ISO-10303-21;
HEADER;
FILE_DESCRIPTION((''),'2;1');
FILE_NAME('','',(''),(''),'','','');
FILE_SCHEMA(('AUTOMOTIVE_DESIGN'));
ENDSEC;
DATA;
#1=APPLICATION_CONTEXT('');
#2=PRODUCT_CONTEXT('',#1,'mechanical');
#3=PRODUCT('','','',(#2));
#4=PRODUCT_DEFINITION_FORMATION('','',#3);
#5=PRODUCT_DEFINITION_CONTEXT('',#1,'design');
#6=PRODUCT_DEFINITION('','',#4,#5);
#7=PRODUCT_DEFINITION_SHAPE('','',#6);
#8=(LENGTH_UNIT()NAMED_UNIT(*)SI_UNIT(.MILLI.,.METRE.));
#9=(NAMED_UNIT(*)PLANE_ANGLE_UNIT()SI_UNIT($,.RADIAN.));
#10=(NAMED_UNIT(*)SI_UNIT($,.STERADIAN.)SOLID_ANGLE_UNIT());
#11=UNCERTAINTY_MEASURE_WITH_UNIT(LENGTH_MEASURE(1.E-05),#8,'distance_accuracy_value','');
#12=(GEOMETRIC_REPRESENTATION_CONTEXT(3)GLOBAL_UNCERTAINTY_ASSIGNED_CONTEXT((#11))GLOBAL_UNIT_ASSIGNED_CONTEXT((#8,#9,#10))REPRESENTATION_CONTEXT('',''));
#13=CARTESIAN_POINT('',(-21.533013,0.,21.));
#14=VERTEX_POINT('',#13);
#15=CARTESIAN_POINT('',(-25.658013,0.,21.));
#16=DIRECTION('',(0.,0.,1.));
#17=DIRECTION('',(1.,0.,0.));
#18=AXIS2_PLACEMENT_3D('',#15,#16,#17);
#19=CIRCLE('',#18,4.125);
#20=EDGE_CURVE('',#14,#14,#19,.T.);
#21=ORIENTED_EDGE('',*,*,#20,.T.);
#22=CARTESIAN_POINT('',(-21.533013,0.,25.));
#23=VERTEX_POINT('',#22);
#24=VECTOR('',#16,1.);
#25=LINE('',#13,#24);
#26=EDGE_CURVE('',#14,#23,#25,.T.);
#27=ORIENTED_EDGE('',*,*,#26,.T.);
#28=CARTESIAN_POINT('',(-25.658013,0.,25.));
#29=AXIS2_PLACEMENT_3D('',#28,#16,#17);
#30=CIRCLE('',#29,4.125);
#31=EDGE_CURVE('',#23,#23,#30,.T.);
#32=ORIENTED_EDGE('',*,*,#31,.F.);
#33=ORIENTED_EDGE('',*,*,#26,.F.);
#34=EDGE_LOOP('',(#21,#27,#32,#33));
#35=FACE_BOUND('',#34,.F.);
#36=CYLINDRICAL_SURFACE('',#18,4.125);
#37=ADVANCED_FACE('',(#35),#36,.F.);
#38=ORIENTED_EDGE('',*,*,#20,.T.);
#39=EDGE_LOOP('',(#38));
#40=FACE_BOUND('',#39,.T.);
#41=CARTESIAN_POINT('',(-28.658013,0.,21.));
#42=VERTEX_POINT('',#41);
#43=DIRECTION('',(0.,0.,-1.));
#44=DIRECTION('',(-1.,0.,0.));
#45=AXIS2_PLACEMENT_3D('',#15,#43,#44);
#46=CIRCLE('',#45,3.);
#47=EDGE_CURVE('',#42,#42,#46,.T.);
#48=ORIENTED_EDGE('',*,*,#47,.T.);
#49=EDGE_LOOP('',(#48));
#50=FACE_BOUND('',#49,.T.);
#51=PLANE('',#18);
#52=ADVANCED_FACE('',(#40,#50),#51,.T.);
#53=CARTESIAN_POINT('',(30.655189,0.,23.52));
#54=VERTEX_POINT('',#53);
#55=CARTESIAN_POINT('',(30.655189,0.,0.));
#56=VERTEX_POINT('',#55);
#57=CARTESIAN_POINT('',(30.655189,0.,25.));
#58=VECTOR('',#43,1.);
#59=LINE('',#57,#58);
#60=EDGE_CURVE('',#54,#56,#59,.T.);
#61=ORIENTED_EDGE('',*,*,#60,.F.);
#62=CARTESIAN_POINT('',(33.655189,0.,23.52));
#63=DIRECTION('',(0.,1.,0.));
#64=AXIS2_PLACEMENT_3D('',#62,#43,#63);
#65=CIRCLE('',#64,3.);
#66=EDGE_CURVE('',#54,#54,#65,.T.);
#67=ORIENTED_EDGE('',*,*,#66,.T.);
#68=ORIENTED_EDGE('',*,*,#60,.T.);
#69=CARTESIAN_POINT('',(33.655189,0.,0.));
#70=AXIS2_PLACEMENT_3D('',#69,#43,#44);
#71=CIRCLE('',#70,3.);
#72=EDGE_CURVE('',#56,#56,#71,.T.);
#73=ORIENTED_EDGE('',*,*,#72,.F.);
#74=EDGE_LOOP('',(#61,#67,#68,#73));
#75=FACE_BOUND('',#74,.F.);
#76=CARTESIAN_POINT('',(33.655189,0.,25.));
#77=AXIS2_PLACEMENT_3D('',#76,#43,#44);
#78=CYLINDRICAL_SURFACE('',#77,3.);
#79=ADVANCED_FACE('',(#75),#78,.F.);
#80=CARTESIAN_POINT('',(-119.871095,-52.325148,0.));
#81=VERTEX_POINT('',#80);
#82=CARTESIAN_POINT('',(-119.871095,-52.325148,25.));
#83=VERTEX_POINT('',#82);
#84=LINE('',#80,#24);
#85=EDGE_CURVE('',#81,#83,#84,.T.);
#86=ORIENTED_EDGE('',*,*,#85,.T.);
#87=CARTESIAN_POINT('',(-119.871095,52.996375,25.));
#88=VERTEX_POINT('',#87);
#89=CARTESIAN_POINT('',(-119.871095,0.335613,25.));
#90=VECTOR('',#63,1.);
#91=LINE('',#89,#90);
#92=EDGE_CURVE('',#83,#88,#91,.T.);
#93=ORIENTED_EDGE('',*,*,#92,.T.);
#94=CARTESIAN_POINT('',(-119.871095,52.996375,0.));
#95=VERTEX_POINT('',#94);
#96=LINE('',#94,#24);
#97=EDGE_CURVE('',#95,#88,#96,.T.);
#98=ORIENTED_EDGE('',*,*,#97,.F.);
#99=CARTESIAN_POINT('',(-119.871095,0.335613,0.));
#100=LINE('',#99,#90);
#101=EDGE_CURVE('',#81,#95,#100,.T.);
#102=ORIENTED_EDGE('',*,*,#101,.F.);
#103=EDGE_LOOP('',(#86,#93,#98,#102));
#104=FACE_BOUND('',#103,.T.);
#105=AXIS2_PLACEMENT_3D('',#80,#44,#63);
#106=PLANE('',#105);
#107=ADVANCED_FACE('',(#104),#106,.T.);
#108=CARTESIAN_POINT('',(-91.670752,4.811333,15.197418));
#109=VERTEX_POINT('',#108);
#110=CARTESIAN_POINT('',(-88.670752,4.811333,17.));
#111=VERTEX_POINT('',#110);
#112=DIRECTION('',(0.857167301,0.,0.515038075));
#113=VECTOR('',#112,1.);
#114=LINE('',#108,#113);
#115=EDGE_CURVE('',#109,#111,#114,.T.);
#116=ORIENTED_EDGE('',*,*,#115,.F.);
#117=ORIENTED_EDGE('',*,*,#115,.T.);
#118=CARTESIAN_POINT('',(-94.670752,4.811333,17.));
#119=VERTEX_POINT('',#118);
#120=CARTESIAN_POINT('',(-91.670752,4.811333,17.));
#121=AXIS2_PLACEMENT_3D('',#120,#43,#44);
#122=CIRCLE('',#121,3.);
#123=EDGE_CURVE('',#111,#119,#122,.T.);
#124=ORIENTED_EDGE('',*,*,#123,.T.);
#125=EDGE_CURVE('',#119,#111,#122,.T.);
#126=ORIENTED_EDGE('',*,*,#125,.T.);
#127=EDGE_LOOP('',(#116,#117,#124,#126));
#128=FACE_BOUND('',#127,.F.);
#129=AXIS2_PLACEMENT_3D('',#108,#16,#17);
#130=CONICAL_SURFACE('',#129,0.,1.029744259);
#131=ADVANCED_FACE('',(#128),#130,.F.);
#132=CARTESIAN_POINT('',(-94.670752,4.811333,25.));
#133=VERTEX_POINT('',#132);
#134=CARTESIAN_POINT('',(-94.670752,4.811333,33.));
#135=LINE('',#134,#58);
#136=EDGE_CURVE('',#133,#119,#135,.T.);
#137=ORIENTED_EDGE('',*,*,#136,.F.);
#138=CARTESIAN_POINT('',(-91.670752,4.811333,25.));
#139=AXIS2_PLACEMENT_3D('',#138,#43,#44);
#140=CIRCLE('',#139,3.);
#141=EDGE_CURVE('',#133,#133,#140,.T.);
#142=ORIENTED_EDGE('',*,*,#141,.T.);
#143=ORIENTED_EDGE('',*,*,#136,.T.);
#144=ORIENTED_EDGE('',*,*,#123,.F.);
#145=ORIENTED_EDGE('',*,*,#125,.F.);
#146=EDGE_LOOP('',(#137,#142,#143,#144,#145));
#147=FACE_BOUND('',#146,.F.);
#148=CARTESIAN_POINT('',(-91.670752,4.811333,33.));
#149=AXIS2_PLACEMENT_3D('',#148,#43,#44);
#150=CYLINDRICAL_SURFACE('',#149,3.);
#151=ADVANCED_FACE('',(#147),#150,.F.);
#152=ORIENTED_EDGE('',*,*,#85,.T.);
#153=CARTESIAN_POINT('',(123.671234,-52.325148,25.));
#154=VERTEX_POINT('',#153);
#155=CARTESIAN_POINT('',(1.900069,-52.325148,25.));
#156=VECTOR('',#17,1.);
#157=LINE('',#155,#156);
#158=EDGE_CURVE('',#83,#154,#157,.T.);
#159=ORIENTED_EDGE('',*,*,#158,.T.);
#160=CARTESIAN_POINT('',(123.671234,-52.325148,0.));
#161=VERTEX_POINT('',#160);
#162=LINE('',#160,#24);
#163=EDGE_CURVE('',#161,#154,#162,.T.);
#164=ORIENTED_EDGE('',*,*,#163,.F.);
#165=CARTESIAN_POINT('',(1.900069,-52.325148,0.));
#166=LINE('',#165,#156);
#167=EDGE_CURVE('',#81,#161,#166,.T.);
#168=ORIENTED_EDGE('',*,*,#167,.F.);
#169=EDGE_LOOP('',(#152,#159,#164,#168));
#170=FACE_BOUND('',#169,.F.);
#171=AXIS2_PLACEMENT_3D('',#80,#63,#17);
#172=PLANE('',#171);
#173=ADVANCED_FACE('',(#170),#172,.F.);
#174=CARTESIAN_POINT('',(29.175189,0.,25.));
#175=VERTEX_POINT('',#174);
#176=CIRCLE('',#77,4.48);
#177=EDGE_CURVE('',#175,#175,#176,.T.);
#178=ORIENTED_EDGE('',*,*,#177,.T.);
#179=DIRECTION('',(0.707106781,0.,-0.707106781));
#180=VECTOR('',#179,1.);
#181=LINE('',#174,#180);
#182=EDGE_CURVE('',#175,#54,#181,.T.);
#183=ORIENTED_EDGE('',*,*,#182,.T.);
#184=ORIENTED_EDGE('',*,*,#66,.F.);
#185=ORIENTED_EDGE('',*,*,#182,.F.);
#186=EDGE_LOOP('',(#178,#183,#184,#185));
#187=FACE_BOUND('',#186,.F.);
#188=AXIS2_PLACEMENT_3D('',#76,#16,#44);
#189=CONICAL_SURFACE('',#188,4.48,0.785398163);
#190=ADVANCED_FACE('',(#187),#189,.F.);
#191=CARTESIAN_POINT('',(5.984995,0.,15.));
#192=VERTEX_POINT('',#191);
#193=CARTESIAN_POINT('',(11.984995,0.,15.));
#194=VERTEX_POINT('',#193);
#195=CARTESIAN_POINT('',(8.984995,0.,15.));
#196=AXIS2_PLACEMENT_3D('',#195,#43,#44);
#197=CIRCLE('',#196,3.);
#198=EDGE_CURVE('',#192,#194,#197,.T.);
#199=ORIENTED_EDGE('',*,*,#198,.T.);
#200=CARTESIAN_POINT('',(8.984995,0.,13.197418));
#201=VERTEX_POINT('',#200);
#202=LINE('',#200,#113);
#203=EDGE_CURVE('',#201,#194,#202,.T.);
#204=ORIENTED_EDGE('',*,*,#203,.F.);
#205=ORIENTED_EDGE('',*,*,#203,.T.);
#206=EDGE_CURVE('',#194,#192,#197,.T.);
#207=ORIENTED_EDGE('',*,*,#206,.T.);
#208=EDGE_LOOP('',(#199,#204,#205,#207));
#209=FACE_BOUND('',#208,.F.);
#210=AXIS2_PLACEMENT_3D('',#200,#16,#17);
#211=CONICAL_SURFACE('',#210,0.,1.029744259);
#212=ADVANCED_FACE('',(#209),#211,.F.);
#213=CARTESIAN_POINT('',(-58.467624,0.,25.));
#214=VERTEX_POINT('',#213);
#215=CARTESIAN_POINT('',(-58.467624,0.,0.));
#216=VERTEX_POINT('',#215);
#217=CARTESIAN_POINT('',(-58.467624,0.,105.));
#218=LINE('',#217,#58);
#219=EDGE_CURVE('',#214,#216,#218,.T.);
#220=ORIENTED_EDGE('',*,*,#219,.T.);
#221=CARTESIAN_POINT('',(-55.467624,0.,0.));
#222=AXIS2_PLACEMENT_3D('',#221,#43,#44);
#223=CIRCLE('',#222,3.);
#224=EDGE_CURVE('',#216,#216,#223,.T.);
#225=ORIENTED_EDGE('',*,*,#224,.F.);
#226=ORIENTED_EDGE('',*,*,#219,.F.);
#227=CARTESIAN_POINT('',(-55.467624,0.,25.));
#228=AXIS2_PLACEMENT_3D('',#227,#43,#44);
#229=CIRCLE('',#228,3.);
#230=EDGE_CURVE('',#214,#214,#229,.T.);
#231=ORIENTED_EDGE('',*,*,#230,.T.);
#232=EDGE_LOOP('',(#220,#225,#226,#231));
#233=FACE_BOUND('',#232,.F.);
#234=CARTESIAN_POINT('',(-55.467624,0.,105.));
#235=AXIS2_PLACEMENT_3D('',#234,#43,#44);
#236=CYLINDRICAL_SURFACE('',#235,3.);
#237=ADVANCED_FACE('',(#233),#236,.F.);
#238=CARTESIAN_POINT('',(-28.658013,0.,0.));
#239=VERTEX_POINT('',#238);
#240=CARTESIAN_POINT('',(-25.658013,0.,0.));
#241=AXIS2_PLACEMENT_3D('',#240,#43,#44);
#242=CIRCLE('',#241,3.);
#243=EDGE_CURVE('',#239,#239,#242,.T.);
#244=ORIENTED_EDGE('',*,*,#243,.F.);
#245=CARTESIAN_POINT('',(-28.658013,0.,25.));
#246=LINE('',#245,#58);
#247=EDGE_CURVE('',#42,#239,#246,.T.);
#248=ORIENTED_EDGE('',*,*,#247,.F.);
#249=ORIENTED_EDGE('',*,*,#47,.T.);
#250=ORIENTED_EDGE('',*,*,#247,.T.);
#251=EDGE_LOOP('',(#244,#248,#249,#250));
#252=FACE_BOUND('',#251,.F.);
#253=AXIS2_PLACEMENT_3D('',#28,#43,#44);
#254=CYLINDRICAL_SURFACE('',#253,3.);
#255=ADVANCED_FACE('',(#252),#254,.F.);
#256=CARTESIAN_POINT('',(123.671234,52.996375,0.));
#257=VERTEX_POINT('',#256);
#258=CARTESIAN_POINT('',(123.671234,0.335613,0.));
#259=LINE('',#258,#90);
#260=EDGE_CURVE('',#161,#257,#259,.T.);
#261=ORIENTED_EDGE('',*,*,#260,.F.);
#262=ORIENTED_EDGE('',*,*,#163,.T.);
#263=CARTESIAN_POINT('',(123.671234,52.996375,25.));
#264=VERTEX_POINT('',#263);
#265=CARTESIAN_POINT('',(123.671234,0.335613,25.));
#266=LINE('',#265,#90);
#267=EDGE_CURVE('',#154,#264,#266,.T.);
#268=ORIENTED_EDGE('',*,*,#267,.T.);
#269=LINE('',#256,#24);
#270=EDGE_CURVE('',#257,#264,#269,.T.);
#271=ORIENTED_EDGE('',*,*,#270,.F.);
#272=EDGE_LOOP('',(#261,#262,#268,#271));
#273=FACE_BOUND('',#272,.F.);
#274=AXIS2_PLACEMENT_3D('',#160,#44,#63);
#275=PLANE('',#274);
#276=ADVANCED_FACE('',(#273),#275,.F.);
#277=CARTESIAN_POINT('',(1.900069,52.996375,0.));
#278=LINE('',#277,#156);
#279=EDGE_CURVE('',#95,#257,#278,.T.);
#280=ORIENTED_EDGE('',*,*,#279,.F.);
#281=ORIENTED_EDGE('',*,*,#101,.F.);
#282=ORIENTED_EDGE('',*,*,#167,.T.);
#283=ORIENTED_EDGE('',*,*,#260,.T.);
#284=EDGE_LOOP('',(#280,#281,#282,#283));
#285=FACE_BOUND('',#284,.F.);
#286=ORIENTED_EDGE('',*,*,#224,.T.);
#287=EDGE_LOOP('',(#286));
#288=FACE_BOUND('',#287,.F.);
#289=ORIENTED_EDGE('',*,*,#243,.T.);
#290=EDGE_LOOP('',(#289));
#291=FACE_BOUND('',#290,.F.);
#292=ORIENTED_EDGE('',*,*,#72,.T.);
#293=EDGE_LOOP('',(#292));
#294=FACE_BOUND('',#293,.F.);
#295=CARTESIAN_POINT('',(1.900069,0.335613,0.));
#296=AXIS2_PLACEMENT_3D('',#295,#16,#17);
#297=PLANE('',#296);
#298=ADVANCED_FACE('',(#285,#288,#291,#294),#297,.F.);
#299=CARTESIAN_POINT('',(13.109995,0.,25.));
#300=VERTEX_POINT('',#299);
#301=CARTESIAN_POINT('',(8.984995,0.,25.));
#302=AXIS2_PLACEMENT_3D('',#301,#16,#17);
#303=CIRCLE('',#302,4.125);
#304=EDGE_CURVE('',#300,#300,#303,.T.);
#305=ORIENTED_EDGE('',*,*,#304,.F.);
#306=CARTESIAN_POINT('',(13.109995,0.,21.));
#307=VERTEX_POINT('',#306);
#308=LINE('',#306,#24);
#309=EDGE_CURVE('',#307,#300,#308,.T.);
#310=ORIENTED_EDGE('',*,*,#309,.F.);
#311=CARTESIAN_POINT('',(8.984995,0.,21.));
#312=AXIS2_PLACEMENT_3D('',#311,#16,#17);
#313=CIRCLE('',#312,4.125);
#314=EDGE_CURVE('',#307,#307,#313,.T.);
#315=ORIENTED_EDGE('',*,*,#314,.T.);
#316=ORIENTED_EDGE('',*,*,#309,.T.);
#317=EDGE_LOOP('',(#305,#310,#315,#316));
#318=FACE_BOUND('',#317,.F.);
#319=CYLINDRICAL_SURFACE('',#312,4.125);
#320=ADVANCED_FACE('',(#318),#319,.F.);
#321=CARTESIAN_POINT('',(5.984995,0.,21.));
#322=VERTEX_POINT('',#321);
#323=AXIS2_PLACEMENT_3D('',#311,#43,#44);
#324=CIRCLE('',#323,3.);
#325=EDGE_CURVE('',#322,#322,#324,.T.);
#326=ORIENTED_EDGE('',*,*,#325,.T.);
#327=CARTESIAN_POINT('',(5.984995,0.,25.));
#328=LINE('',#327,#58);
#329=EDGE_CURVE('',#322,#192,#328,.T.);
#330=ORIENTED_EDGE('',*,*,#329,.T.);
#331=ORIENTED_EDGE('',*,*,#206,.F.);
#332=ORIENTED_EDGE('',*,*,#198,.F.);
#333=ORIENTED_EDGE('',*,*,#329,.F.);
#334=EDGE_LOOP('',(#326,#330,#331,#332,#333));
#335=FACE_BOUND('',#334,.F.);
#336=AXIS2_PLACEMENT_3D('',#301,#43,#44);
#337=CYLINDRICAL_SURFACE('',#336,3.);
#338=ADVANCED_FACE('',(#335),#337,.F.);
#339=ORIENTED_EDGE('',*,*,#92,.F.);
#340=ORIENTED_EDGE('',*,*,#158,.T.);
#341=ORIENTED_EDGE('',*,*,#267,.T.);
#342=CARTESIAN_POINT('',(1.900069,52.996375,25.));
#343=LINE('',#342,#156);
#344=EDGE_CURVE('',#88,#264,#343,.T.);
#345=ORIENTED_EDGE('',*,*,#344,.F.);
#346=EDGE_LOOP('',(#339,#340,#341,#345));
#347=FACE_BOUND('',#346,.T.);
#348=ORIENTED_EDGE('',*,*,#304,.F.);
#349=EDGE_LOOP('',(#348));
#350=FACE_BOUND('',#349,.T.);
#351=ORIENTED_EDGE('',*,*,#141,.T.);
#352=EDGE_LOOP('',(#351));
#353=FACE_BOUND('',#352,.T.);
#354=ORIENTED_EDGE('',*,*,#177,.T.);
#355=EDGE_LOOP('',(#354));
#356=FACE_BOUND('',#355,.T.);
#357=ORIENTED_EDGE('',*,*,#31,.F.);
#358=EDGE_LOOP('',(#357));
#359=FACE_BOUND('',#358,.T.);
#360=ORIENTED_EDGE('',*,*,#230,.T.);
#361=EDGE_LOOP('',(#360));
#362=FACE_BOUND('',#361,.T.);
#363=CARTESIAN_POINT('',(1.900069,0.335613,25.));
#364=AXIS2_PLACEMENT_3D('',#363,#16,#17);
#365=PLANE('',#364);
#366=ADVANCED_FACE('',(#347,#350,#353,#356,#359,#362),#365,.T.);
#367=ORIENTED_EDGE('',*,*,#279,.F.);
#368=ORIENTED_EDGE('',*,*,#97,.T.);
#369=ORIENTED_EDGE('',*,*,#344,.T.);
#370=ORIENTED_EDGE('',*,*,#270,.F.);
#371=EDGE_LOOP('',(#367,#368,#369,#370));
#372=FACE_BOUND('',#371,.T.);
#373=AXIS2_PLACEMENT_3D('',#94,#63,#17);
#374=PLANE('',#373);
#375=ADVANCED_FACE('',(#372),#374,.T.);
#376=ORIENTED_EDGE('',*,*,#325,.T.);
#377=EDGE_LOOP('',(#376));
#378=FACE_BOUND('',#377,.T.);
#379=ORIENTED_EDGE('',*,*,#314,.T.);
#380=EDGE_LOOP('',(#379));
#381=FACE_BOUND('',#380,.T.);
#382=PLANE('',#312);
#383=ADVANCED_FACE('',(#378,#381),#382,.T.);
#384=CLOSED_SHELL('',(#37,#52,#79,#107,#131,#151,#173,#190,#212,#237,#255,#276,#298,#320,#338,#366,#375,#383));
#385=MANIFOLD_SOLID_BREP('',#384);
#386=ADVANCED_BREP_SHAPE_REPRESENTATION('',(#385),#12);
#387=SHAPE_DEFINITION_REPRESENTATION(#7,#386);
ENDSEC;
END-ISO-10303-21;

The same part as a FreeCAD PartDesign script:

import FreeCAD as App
import Part
import Sketcher

V = App.Vector
Q = App.Units.Quantity


def add_polygon(sketch, points):
    """Adds a closed chain of lines whose ends are joined by coincident constraints."""
    first, n = sketch.GeometryCount, len(points)
    for a, b in zip(points, points[1:] + points[:1]):
        sketch.addGeometry(Part.LineSegment(App.Vector(*a, 0), App.Vector(*b, 0)), False)
    for i in range(n):
        sketch.addConstraint(Sketcher.Constraint("Coincident", first + i, 2, first + (i + 1) % n, 1))

doc = App.newDocument("Part")
body = doc.addObject("PartDesign::Body", "Body")

sketch1 = body.newObject("Sketcher::SketchObject", "Sketch")
sketch1.AttachmentSupport = (doc.getObject("XY_Plane"), [""])
sketch1.MapMode = "FlatFace"
add_polygon(sketch1, [(-119.871095, 52.996375), (-119.871095, -52.325148), (123.671234, -52.325148), (123.671234, 52.996375)])
sketch1.addConstraint([
    Sketcher.Constraint("Vertical", 0),
    Sketcher.Constraint("Horizontal", 1),
    Sketcher.Constraint("Vertical", 2),
    Sketcher.Constraint("Horizontal", 3),
    Sketcher.Constraint("DistanceX", 1, 1, 1, 2, Q("243.542328 mm")),
    Sketcher.Constraint("DistanceY", 0, 2, 0, 1, Q("105.321523 mm")),
    Sketcher.Constraint("DistanceY", 0, 2, -1, 1, Q("52.325148 mm")),
    Sketcher.Constraint("DistanceX", 0, 2, -1, 1, Q("119.871095 mm")),
])
pad1 = body.newObject("PartDesign::Pad", "Pad")
pad1.Profile = sketch1
pad1.Length = 25

sketch2 = body.newObject("Sketcher::SketchObject", "Sketch001")
sketch2.AttachmentSupport = (doc.getObject("XY_Plane"), [""])
sketch2.MapMode = "FlatFace"
sketch2.AttachmentOffset = App.Placement(V(0, 0, 25), App.Rotation())
sketch2.addGeometry(Part.Circle(V(-91.670752, 4.811333, 0), V(0, 0, 1), 3), False)
sketch2.addConstraint([
    Sketcher.Constraint("Diameter", 0, Q("6 mm")),
    Sketcher.Constraint("DistanceX", 0, 3, -1, 1, Q("91.670752 mm")),
    Sketcher.Constraint("DistanceY", -1, 1, 0, 3, Q("4.811333 mm")),
])
doc.recompute()
hole = body.newObject("PartDesign::Hole", "Hole")
hole.Profile = sketch2
hole.ThreadType = "None"
hole.Diameter = 6
hole.DepthType = "Dimension"
hole.Depth = 8
hole.DrillPoint = "Angled"
hole.DrillPointAngle = 118

sketch3 = body.newObject("Sketcher::SketchObject", "Sketch002")
sketch3.AttachmentSupport = (doc.getObject("XY_Plane"), [""])
sketch3.MapMode = "FlatFace"
sketch3.AttachmentOffset = App.Placement(V(0, 0, 25), App.Rotation())
sketch3.addGeometry(Part.Circle(V(-55.467624, 0, 0), V(0, 0, 1), 3), False)
sketch3.addConstraint([
    Sketcher.Constraint("PointOnObject", 0, 3, -1),
    Sketcher.Constraint("Diameter", 0, Q("6 mm")),
    Sketcher.Constraint("DistanceX", 0, 3, -1, 1, Q("55.467624 mm")),
])
doc.recompute()
hole2 = body.newObject("PartDesign::Hole", "Hole001")
hole2.Profile = sketch3
hole2.ThreadType = "None"
hole2.Diameter = 6
hole2.DepthType = "Dimension"
hole2.Depth = 80
hole2.DrillPoint = "Angled"
hole2.DrillPointAngle = 118

sketch4 = body.newObject("Sketcher::SketchObject", "Sketch003")
sketch4.AttachmentSupport = (doc.getObject("XY_Plane"), [""])
sketch4.MapMode = "FlatFace"
sketch4.AttachmentOffset = App.Placement(V(0, 0, 25), App.Rotation())
sketch4.addGeometry(Part.Circle(V(-25.658013, 0, 0), V(0, 0, 1), 3), False)
sketch4.addConstraint([
    Sketcher.Constraint("PointOnObject", 0, 3, -1),
    Sketcher.Constraint("Diameter", 0, Q("6 mm")),
    Sketcher.Constraint("DistanceX", 0, 3, -1, 1, Q("25.658013 mm")),
])
doc.recompute()
hole3 = body.newObject("PartDesign::Hole", "Hole002")
hole3.Profile = sketch4
hole3.ThreadType = "None"
hole3.Diameter = 6
hole3.DepthType = "Dimension"
hole3.Depth = 80
hole3.DrillPoint = "Angled"
hole3.DrillPointAngle = 118
hole3.HoleCutType = "Counterbore"
hole3.HoleCutDiameter = 8.25
hole3.HoleCutDepth = 4

sketch5 = body.newObject("Sketcher::SketchObject", "Sketch004")
sketch5.AttachmentSupport = (doc.getObject("XY_Plane"), [""])
sketch5.MapMode = "FlatFace"
sketch5.AttachmentOffset = App.Placement(V(0, 0, 25), App.Rotation())
sketch5.addGeometry(Part.Circle(V(8.984995, 0, 0), V(0, 0, 1), 3), False)
sketch5.addConstraint([
    Sketcher.Constraint("PointOnObject", 0, 3, -1),
    Sketcher.Constraint("Diameter", 0, Q("6 mm")),
    Sketcher.Constraint("DistanceX", -1, 1, 0, 3, Q("8.984995 mm")),
])
doc.recompute()
hole4 = body.newObject("PartDesign::Hole", "Hole003")
hole4.Profile = sketch5
hole4.ThreadType = "None"
hole4.Diameter = 6
hole4.DepthType = "Dimension"
hole4.Depth = 10
hole4.DrillPoint = "Angled"
hole4.DrillPointAngle = 118
hole4.HoleCutType = "Counterbore"
hole4.HoleCutDiameter = 8.25
hole4.HoleCutDepth = 4

sketch6 = body.newObject("Sketcher::SketchObject", "Sketch005")
sketch6.AttachmentSupport = (doc.getObject("XY_Plane"), [""])
sketch6.MapMode = "FlatFace"
sketch6.AttachmentOffset = App.Placement(V(0, 0, 25), App.Rotation())
sketch6.addGeometry(Part.Circle(V(33.655189, 0, 0), V(0, 0, 1), 3), False)
sketch6.addConstraint([
    Sketcher.Constraint("PointOnObject", 0, 3, -1),
    Sketcher.Constraint("Diameter", 0, Q("6 mm")),
    Sketcher.Constraint("DistanceX", -1, 1, 0, 3, Q("33.655189 mm")),
])
doc.recompute()
hole5 = body.newObject("PartDesign::Hole", "Hole004")
hole5.Profile = sketch6
hole5.ThreadType = "None"
hole5.Diameter = 6
hole5.DepthType = "Dimension"
hole5.Depth = 50
hole5.DrillPoint = "Angled"
hole5.DrillPointAngle = 118
hole5.HoleCutType = "Countersink"
hole5.HoleCutDiameter = 8.96
hole5.HoleCutCountersinkAngle = 90

doc.recompute()
